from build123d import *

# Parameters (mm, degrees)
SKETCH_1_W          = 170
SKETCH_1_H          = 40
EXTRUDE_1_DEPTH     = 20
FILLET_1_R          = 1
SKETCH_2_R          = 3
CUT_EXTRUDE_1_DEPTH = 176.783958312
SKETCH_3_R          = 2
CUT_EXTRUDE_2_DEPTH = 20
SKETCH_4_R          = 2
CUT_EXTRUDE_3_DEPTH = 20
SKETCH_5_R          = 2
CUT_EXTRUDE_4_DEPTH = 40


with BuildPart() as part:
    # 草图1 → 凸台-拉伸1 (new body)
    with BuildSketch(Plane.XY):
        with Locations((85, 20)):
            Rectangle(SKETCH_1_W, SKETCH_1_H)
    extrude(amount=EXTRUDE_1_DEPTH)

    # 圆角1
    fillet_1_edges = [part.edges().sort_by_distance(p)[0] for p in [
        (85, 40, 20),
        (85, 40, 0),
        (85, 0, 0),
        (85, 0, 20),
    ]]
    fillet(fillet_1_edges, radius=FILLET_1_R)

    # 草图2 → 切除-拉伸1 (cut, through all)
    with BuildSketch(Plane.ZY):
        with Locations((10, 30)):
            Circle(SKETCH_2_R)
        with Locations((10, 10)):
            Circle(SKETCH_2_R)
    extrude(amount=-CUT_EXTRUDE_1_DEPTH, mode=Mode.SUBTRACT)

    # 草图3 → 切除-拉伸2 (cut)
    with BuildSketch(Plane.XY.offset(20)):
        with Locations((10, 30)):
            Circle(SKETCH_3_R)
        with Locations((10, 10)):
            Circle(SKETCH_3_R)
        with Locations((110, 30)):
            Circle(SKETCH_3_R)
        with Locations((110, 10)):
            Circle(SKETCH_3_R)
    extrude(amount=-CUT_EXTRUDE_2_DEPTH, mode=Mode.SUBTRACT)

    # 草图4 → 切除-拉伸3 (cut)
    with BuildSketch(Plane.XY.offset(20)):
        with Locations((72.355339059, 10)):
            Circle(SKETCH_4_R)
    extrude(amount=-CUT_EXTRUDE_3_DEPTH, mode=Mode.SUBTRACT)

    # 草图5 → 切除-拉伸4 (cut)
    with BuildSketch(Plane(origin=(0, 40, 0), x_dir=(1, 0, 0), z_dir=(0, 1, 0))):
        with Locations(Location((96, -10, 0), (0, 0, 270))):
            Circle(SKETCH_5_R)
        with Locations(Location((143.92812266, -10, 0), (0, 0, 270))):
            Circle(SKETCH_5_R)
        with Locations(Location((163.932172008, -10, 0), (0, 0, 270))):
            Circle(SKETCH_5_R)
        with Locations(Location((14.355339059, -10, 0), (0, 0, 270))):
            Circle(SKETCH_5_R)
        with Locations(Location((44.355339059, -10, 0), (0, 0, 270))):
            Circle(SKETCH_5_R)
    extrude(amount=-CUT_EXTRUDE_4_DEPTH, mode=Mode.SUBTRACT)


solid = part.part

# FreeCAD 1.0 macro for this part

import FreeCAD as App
import Part
import Sketcher

V = App.Vector
Q = App.Units.Quantity


def edges_at(feature, points):
    """Names of the edges that pass closest to the given points."""
    edges = feature.Shape.Edges
    near = lambda p: min(range(len(edges)), key=lambda i: edges[i].distToShape(Part.Vertex(*p))[0])
    return sorted({f"Edge{near(p) + 1}" for p in points})

doc = App.newDocument("Part")
body = doc.addObject("PartDesign::Body", "Body")

sketch1 = body.newObject("Sketcher::SketchObject", "Sketch")
sketch1.AttachmentSupport = (doc.getObject("XY_Plane"), [""])
sketch1.MapMode = "FlatFace"
sketch1.addGeometry([
    Part.LineSegment(V(0, 40, 0), V(0, 0, 0)),
    Part.LineSegment(V(0, 0, 0), V(170, 0, 0)),
    Part.LineSegment(V(170, 0, 0), V(170, 40, 0)),
    Part.LineSegment(V(170, 40, 0), V(0, 40, 0)),
], False)
sketch1.addConstraint([
    Sketcher.Constraint("Coincident", 0, 2, 1, 1),
    Sketcher.Constraint("Coincident", 1, 2, 2, 1),
    Sketcher.Constraint("Coincident", 2, 2, 3, 1),
    Sketcher.Constraint("Coincident", 3, 2, 0, 1),
    Sketcher.Constraint("Vertical", 0),
    Sketcher.Constraint("Horizontal", 1),
    Sketcher.Constraint("Vertical", 2),
    Sketcher.Constraint("Horizontal", 3),
    Sketcher.Constraint("Coincident", 0, 2, -1, 1),
    Sketcher.Constraint("DistanceX", 1, 1, 1, 2, Q("170 mm")),
    Sketcher.Constraint("DistanceY", 0, 2, 0, 1, Q("40 mm")),
])
pad1 = body.newObject("PartDesign::Pad", "Pad")
pad1.Profile = sketch1
pad1.Length = 20
doc.recompute()

fillet = body.newObject("PartDesign::Fillet", "Fillet")
fillet.Base = (pad1, edges_at(pad1, [
    (85, 40, 20),
    (85, 40, 0),
    (85, 0, 0),
    (85, 0, 20),
]))
fillet.Radius = 1

sketch2 = body.newObject("Sketcher::SketchObject", "Sketch001")
sketch2.AttachmentSupport = (doc.getObject("YZ_Plane"), [""])
sketch2.MapMode = "FlatFace"
sketch2.addGeometry([
    Part.Circle(V(30, 10, 0), V(0, 0, 1), 3),
    Part.Circle(V(10, 10, 0), V(0, 0, 1), 3),
], False)
sketch2.addConstraint([
    Sketcher.Constraint("Equal", 0, 1),
    Sketcher.Constraint("Horizontal", 0, 3, 1, 3),
    Sketcher.Constraint("Diameter", 0, Q("6 mm")),
    Sketcher.Constraint("DistanceX", -1, 1, 0, 3, Q("30 mm")),
    Sketcher.Constraint("DistanceY", -1, 1, 0, 3, Q("10 mm")),
    Sketcher.Constraint("DistanceX", -1, 1, 1, 3, Q("10 mm")),
])
pocket1 = body.newObject("PartDesign::Pocket", "Pocket")
pocket1.Profile = sketch2
pocket1.Type = "ThroughAll"
pocket1.Reversed = True

sketch3 = body.newObject("Sketcher::SketchObject", "Sketch002")
sketch3.AttachmentSupport = (doc.getObject("XY_Plane"), [""])
sketch3.MapMode = "FlatFace"
sketch3.AttachmentOffset = App.Placement(V(0, 0, 20), App.Rotation())
sketch3.addGeometry([
    Part.Circle(V(10, 30, 0), V(0, 0, 1), 2),
    Part.Circle(V(10, 10, 0), V(0, 0, 1), 2),
    Part.Circle(V(110, 30, 0), V(0, 0, 1), 2),
    Part.Circle(V(110, 10, 0), V(0, 0, 1), 2),
], False)
sketch3.addConstraint([
    Sketcher.Constraint("Equal", 0, 1),
    Sketcher.Constraint("Equal", 1, 2),
    Sketcher.Constraint("Equal", 2, 3),
    Sketcher.Constraint("Horizontal", 0, 3, 2, 3),
    Sketcher.Constraint("Horizontal", 1, 3, 3, 3),
    Sketcher.Constraint("Vertical", 0, 3, 1, 3),
    Sketcher.Constraint("Vertical", 2, 3, 3, 3),
    Sketcher.Constraint("Diameter", 0, Q("4 mm")),
    Sketcher.Constraint("DistanceX", -1, 1, 0, 3, Q("10 mm")),
    Sketcher.Constraint("DistanceY", -1, 1, 0, 3, Q("30 mm")),
    Sketcher.Constraint("DistanceY", -1, 1, 1, 3, Q("10 mm")),
    Sketcher.Constraint("DistanceX", -1, 1, 2, 3, Q("110 mm")),
])
pocket2 = body.newObject("PartDesign::Pocket", "Pocket001")
pocket2.Profile = sketch3
pocket2.Length = 20

sketch4 = body.newObject("Sketcher::SketchObject", "Sketch003")
sketch4.AttachmentSupport = (doc.getObject("XY_Plane"), [""])
sketch4.MapMode = "FlatFace"
sketch4.AttachmentOffset = App.Placement(V(0, 0, 20), App.Rotation())
sketch4.addGeometry(Part.Circle(V(72.4, 10, 0), V(0, 0, 1), 2), False)
sketch4.addConstraint([
    Sketcher.Constraint("Diameter", 0, Q("4 mm")),
    Sketcher.Constraint("DistanceY", -1, 1, 0, 3, Q("10 mm")),
    Sketcher.Constraint("DistanceX", -1, 1, 0, 3, Q("72.355339 mm")),
])
pocket3 = body.newObject("PartDesign::Pocket", "Pocket002")
pocket3.Profile = sketch4
pocket3.Length = 20

sketch5 = body.newObject("Sketcher::SketchObject", "Sketch004")
sketch5.AttachmentSupport = (doc.getObject("XZ_Plane"), [""])
sketch5.MapMode = "FlatFace"
sketch5.AttachmentOffset = App.Placement(V(0, 0, -40), App.Rotation())
sketch5.addGeometry([
    Part.Circle(V(96, 10, 0), V(0, 0, 1), 2),
    Part.Circle(V(143.9, 10, 0), V(0, 0, 1), 2),
    Part.Circle(V(163.9, 10, 0), V(0, 0, 1), 2),
    Part.Circle(V(14.4, 10, 0), V(0, 0, 1), 2),
    Part.Circle(V(44.4, 10, 0), V(0, 0, 1), 2),
], False)
sketch5.addConstraint([
    Sketcher.Constraint("Equal", 0, 1),
    Sketcher.Constraint("Equal", 1, 2),
    Sketcher.Constraint("Equal", 2, 3),
    Sketcher.Constraint("Equal", 3, 4),
    Sketcher.Constraint("Horizontal", 0, 3, 1, 3),
    Sketcher.Constraint("Horizontal", 1, 3, 2, 3),
    Sketcher.Constraint("Horizontal", 2, 3, 3, 3),
    Sketcher.Constraint("Horizontal", 3, 3, 4, 3),
    Sketcher.Constraint("Diameter", 0, Q("4 mm")),
    Sketcher.Constraint("DistanceX", -1, 1, 0, 3, Q("96 mm")),
    Sketcher.Constraint("DistanceY", -1, 1, 0, 3, Q("10 mm")),
    Sketcher.Constraint("DistanceX", 3, 3, 4, 3, Q("30 mm")),
    Sketcher.Constraint("DistanceX", -1, 1, 3, 3, Q("14.355339 mm")),
    Sketcher.Constraint("DistanceX", 1, 3, 2, 3, Q("20.004049 mm")),
    Sketcher.Constraint("DistanceX", -1, 1, 1, 3, Q("143.928123 mm")),
])
pocket4 = body.newObject("PartDesign::Pocket", "Pocket003")
pocket4.Profile = sketch5
pocket4.Length = 40
pocket4.Reversed = True

doc.recompute()
